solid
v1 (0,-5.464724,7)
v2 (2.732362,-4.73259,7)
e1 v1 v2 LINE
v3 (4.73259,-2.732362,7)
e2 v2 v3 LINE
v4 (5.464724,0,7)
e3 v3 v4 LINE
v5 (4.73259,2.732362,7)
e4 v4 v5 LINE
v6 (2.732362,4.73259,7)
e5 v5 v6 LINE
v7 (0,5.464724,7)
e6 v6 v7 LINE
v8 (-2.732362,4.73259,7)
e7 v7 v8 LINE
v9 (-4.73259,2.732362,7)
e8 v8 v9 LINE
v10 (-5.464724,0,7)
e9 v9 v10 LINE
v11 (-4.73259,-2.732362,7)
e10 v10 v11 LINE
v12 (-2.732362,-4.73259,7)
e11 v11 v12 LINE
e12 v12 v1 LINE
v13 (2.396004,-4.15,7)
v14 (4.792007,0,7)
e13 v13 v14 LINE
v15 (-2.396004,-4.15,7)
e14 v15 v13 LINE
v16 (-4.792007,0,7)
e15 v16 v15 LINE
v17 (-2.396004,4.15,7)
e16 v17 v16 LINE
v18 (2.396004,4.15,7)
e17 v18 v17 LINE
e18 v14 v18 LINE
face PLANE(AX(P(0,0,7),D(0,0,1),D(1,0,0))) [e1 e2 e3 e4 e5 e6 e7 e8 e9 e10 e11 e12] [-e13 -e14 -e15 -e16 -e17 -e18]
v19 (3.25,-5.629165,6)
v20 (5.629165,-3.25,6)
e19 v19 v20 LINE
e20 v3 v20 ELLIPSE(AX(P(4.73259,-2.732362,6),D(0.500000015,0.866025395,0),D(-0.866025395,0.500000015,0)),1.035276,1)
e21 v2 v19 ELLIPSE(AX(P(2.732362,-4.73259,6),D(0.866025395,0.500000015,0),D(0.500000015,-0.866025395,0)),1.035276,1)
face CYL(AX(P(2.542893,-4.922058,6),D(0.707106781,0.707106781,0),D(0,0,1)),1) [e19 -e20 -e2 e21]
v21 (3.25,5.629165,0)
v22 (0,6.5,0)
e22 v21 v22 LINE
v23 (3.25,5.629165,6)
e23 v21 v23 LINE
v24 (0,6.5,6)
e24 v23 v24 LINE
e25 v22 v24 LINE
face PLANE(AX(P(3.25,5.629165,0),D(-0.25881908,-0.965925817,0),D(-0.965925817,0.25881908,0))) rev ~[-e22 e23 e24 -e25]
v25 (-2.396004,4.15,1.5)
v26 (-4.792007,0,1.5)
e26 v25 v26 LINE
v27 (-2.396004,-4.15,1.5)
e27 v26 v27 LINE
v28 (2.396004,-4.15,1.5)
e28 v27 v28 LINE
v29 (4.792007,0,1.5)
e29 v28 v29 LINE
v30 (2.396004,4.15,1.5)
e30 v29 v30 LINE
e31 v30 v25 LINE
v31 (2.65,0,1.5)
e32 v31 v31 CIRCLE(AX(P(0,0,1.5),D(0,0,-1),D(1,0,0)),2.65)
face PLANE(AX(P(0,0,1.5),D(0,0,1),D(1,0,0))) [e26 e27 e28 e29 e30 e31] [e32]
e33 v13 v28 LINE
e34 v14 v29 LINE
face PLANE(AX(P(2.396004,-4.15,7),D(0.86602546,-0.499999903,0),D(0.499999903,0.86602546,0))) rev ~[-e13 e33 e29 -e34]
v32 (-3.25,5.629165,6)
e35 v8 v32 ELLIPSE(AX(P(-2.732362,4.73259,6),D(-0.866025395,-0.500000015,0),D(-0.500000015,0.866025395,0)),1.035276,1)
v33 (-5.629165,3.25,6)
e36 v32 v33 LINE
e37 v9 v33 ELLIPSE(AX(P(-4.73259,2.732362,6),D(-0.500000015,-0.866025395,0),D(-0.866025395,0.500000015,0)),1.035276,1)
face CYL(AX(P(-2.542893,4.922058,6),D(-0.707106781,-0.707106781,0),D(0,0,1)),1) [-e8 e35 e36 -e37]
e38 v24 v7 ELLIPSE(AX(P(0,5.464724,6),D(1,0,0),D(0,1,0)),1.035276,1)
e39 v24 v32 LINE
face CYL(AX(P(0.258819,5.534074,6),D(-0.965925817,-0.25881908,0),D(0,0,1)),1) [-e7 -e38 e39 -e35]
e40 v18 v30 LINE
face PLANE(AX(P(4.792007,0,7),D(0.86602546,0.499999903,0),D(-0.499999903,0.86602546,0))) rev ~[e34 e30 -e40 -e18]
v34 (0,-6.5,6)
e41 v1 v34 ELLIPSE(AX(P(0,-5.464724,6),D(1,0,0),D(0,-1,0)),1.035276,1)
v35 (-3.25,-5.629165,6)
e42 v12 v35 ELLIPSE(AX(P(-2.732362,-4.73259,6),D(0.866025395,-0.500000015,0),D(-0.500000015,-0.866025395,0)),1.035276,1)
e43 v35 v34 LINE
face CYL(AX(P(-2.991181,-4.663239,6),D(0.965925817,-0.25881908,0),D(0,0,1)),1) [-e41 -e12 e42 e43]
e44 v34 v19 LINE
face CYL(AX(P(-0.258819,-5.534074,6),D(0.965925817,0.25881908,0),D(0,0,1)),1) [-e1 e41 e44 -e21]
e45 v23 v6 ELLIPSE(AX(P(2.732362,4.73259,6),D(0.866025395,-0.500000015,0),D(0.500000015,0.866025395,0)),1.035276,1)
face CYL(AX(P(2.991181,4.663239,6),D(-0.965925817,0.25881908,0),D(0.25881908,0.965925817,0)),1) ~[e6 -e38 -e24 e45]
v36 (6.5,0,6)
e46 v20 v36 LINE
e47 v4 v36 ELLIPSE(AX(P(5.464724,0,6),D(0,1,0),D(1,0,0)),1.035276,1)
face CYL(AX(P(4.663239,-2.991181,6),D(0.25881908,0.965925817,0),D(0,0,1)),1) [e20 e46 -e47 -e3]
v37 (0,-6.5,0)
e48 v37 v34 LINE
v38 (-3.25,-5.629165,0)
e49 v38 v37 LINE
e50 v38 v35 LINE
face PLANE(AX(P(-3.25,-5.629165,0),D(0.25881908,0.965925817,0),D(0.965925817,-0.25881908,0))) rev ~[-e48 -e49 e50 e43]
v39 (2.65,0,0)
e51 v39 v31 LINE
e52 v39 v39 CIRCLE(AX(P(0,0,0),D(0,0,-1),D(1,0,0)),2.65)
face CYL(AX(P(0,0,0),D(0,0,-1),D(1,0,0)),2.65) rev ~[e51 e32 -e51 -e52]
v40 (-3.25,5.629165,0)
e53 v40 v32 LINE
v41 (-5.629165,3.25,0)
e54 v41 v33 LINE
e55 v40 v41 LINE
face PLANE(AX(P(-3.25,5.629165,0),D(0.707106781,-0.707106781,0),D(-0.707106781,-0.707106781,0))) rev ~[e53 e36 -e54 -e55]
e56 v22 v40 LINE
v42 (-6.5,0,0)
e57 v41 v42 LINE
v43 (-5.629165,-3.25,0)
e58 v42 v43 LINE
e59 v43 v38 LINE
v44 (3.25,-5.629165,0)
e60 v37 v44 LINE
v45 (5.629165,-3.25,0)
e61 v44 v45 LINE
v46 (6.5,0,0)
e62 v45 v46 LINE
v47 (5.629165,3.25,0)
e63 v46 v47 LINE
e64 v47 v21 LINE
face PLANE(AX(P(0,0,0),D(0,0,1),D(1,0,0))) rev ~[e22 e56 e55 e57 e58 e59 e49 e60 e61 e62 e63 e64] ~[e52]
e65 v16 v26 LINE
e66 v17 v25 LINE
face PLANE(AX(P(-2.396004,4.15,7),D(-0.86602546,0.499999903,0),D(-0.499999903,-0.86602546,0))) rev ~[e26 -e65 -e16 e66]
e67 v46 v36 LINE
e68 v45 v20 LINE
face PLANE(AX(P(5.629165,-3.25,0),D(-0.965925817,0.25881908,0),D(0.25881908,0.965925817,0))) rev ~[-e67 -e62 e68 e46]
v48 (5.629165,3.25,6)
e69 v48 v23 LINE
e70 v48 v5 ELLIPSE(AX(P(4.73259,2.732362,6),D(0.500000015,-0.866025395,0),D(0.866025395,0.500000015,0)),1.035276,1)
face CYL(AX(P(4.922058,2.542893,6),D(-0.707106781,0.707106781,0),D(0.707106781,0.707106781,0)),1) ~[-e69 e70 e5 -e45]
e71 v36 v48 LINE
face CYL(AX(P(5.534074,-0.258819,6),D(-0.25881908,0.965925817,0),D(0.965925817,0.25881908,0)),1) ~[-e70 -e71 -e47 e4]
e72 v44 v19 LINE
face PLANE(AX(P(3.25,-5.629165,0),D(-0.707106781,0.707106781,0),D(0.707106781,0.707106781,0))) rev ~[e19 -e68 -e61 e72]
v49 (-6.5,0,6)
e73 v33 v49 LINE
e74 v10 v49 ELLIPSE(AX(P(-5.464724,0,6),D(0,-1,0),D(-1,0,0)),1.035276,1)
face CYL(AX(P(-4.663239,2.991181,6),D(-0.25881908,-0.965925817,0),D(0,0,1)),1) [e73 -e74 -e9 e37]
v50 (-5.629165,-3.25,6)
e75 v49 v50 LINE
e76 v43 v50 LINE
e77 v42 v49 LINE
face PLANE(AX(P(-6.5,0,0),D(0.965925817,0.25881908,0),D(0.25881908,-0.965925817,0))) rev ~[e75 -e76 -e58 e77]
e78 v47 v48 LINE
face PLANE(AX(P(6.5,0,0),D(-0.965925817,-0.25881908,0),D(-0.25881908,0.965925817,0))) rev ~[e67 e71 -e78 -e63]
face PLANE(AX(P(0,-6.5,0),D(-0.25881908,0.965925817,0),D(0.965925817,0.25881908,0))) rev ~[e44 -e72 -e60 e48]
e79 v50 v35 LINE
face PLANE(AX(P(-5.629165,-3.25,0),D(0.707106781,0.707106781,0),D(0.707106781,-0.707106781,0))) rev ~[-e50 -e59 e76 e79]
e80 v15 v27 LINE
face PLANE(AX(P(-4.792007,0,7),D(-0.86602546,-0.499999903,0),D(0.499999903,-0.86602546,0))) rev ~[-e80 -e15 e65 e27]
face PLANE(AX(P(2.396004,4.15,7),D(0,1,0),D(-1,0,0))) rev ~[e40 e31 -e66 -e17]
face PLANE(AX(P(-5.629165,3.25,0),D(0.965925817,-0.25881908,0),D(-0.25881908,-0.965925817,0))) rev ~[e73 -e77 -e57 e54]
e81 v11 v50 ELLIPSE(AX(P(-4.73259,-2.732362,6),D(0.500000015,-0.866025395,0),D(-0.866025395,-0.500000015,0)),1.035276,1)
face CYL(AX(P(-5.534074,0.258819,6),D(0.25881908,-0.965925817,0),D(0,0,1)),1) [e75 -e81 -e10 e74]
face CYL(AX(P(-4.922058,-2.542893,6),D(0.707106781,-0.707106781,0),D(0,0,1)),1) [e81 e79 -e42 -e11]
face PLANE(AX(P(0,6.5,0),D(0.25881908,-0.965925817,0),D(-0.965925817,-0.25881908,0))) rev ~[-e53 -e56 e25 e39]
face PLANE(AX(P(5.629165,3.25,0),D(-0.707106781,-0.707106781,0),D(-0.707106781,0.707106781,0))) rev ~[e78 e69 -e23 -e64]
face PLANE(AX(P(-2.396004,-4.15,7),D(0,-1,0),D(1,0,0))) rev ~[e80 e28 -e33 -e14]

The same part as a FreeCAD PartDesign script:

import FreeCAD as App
import Part
import Sketcher
Q = App.Units.Quantity


def edges_at(feature, points):
    """Names of the edges that pass closest to the given points."""
    edges = feature.Shape.Edges
    near = lambda p: min(range(len(edges)), key=lambda i: edges[i].distToShape(Part.Vertex(*p))[0])
    return sorted({f"Edge{near(p) + 1}" for p in points})


def add_polygon(sketch, points):
    """Adds a closed chain of lines whose ends are joined by coincident constraints."""
    first, n = sketch.GeometryCount, len(points)
    for a, b in zip(points, points[1:] + points[:1]):
        sketch.addGeometry(Part.LineSegment(App.Vector(*a, 0), App.Vector(*b, 0)), False)
    for i in range(n):
        sketch.addConstraint(Sketcher.Constraint("Coincident", first + i, 2, first + (i + 1) % n, 1))

doc = App.newDocument("Part")
body = doc.addObject("PartDesign::Body", "Body")

# Sketch on XY plane
sketch1 = doc.addObject("Sketcher::SketchObject", "Sketch")
body.addObject(sketch1)
sketch1.AttachmentSupport = (doc.XY_Plane, [""])
sketch1.MapMode = "FlatFace"
add_polygon(sketch1, [(5.629165, 3.25), (3.25, 5.629165), (0, 6.5), (-3.25, 5.629165), (-5.629165, 3.25), (-6.5, 0), (-5.629165, -3.25), (-3.25, -5.629165), (0, -6.5), (3.25, -5.629165), (5.629165, -3.25), (6.5, 0)])  # lines 0-11
sketch1.addConstraint([
    Sketcher.Constraint("Symmetric", 0, 2, 6, 2, -1, 1),
    Sketcher.Constraint("Symmetric", 1, 2, 7, 2, -1, 1),
    Sketcher.Constraint("Symmetric", 2, 2, 8, 2, -1, 1),
    Sketcher.Constraint("Symmetric", 3, 2, 9, 2, -1, 1),
    Sketcher.Constraint("Symmetric", 4, 2, 10, 2, -1, 1),
    Sketcher.Constraint("Symmetric", 5, 2, 11, 2, -1, 1),
    Sketcher.Constraint("Symmetric", 0, 2, 2, 2, -2),
    Sketcher.Constraint("Symmetric", 5, 2, 9, 2, -2),
    Sketcher.Constraint("PointOnObject", 1, 2, -2),
    Sketcher.Constraint("PointOnObject", 4, 2, -1),
    Sketcher.Constraint("Perpendicular", 0, 3),
    Sketcher.Constraint("Perpendicular", 1, 4),
    Sketcher.Constraint("Equal", 0, 1),
    Sketcher.Constraint("Equal", 3, 4),
    Sketcher.Constraint("Angle", 1, Q("164.999998 deg")),
    Sketcher.Constraint("DistanceY", -1, 1, 1, 2, 6.5),
])
pad1 = doc.addObject("PartDesign::Pad", "Pad")
body.addObject(pad1)
pad1.Profile = sketch1
pad1.Length = 7

# Sketch on XY plane
sketch2 = doc.addObject("Sketcher::SketchObject", "Sketch001")
body.addObject(sketch2)
sketch2.AttachmentSupport = (doc.XY_Plane, [""])
sketch2.MapMode = "FlatFace"
sketch2.AttachmentOffset = App.Placement(App.Vector(0, 0, 7), App.Rotation())
add_polygon(sketch2, [(4.792007, 0), (2.396004, 4.15), (-2.396004, 4.15), (-4.792007, 0), (-2.396004, -4.15), (2.396004, -4.15)])  # lines 0-5
sketch2.addConstraint([
    Sketcher.Constraint("Horizontal", 1),
    Sketcher.Constraint("Horizontal", 4),
    Sketcher.Constraint("Symmetric", 0, 2, 3, 2, -1, 1),
    Sketcher.Constraint("Symmetric", 2, 2, 5, 2, -1, 1),
    Sketcher.Constraint("PointOnObject", 2, 2, -1),
    Sketcher.Constraint("Parallel", 2, 5),
    Sketcher.Constraint("Vertical", 1, 2, 3, 2),
    Sketcher.Constraint("Angle", 0, Q("119.999994 deg")),
    Sketcher.Constraint("DistanceY", 3, 2, 1, 2, 8.3),
    Sketcher.Constraint("DistanceX", 1, 2, 1, 1, 4.792008),
])
pocket1 = doc.addObject("PartDesign::Pocket", "Pocket")
body.addObject(pocket1)
pocket1.Profile = sketch2
pocket1.Length = 5.5

# Sketch on XY plane
sketch3 = doc.addObject("Sketcher::SketchObject", "Sketch002")
body.addObject(sketch3)
sketch3.AttachmentSupport = (doc.XY_Plane, [""])
sketch3.MapMode = "FlatFace"
sketch3.addGeometry(Part.Circle(App.Vector(0, 0, 0), App.Vector(0, 0, 1), 2.65), False)
sketch3.addConstraint([
    Sketcher.Constraint("Coincident", 0, 3, -1, 1),
    Sketcher.Constraint("Diameter", 0, 5.3),
])
pocket2 = doc.addObject("PartDesign::Pocket", "Pocket001")
body.addObject(pocket2)
pocket2.Profile = sketch3
pocket2.Type = "ThroughAll"
pocket2.Reversed = True
doc.recompute()

fillet = doc.addObject("PartDesign::Fillet", "Fillet")
body.addObject(fillet)
fillet.Base = (pocket2, edges_at(pocket2, [
    (6.065, -1.625, 7),
    (6.065, 1.625, 7),
    (4.44, 4.44, 7),
    (1.625, 6.065, 7),
    (-1.625, 6.065, 7),
    (-4.44, 4.44, 7),
    (-6.065, 1.625, 7),
    (-6.065, -1.625, 7),
    (-4.44, -4.44, 7),
    (-1.625, -6.065, 7),
    (1.625, -6.065, 7),
    (4.44, -4.44, 7),
]))
fillet.Radius = 1

doc.recompute()
